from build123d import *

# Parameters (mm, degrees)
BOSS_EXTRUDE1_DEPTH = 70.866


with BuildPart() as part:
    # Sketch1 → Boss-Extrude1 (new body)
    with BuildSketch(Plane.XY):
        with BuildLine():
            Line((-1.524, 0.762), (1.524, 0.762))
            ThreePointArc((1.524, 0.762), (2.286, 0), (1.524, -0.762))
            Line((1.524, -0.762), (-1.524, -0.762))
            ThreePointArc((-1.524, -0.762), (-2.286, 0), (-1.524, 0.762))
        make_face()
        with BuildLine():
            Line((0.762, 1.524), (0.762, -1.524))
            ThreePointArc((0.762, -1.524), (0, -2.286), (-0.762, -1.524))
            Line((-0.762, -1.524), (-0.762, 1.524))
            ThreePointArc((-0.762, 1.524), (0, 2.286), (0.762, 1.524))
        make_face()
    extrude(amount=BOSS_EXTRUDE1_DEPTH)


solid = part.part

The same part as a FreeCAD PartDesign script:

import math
import FreeCAD as App
import Part
import Sketcher

V = App.Vector
Q = App.Units.Quantity

doc = App.newDocument("Part")
params = doc.addObject("Spreadsheet::Sheet", "Params")
for row, (alias, value) in enumerate([
    ("sketch1_radius", "0.03 in"),
    ("sketch1_width", "0.03 in"),
    ("pad1_length", "2.79 in"),
], start=1):
    params.set(f"A{row}", alias)
    params.set(f"B{row}", "=" + value)
    params.setAlias(f"B{row}", alias)

body = doc.addObject("PartDesign::Body", "Body")

sketch1 = doc.addObject("Sketcher::SketchObject", "Sketch")
body.addObject(sketch1)
sketch1.AttachmentSupport = (doc.XY_Plane, [""])
sketch1.MapMode = "FlatFace"
sketch1.addGeometry(Part.ArcOfCircle(Part.Circle(V(-1.5, 0, 0), V(0, 0, 1), 0.8), math.radians(90), math.radians(270)), False)
sketch1.addGeometry(Part.LineSegment(V(-1.5, -0.8, 0), V(-0.8, -0.8, 0)), False)
sketch1.addGeometry(Part.LineSegment(V(-0.8, -0.8, 0), V(-0.8, -1.5, 0)), False)
sketch1.addGeometry(Part.ArcOfCircle(Part.Circle(V(0, -1.5, 0), V(0, 0, 1), 0.8), math.radians(180), math.radians(360)), False)
sketch1.addGeometry(Part.LineSegment(V(0.8, -1.5, 0), V(0.8, -0.8, 0)), False)
sketch1.addGeometry(Part.LineSegment(V(0.8, -0.8, 0), V(1.5, -0.8, 0)), False)
sketch1.addGeometry(Part.ArcOfCircle(Part.Circle(V(1.5, 0, 0), V(0, 0, 1), 0.8), math.radians(-90), math.radians(90)), False)
sketch1.addGeometry(Part.LineSegment(V(1.5, 0.8, 0), V(0.8, 0.8, 0)), False)
sketch1.addGeometry(Part.LineSegment(V(0.8, 0.8, 0), V(0.8, 1.5, 0)), False)
sketch1.addGeometry(Part.ArcOfCircle(Part.Circle(V(0, 1.5, 0), V(0, 0, 1), 0.8), math.radians(0), math.radians(180)), False)
sketch1.addGeometry(Part.LineSegment(V(-0.8, 1.5, 0), V(-0.8, 0.8, 0)), False)
sketch1.addGeometry(Part.LineSegment(V(-0.8, 0.8, 0), V(-1.5, 0.8, 0)), False)
sketch1.addConstraint(Sketcher.Constraint("Tangent", 0, 2, 1, 1))
sketch1.addConstraint(Sketcher.Constraint("Coincident", 1, 2, 2, 1))
sketch1.addConstraint(Sketcher.Constraint("Tangent", 2, 2, 3, 1))
sketch1.addConstraint(Sketcher.Constraint("Tangent", 3, 2, 4, 1))
sketch1.addConstraint(Sketcher.Constraint("Coincident", 4, 2, 5, 1))
sketch1.addConstraint(Sketcher.Constraint("Tangent", 5, 2, 6, 1))
sketch1.addConstraint(Sketcher.Constraint("Tangent", 6, 2, 7, 1))
sketch1.addConstraint(Sketcher.Constraint("Coincident", 7, 2, 8, 1))
sketch1.addConstraint(Sketcher.Constraint("Tangent", 8, 2, 9, 1))
sketch1.addConstraint(Sketcher.Constraint("Tangent", 9, 2, 10, 1))
sketch1.addConstraint(Sketcher.Constraint("Coincident", 10, 2, 11, 1))
sketch1.addConstraint(Sketcher.Constraint("Tangent", 11, 2, 0, 1))
sketch1.addConstraint(Sketcher.Constraint("Horizontal", 1))
sketch1.addConstraint(Sketcher.Constraint("Vertical", 2))
sketch1.addConstraint(Sketcher.Constraint("Vertical", 4))
sketch1.addConstraint(Sketcher.Constraint("Horizontal", 5))
sketch1.addConstraint(Sketcher.Constraint("Horizontal", 7))
sketch1.addConstraint(Sketcher.Constraint("Vertical", 8))
sketch1.addConstraint(Sketcher.Constraint("Vertical", 10))
sketch1.addConstraint(Sketcher.Constraint("Horizontal", 11))
sketch1.addConstraint(Sketcher.Constraint("Equal", 0, 3))
sketch1.addConstraint(Sketcher.Constraint("Equal", 3, 6))
sketch1.addConstraint(Sketcher.Constraint("Equal", 6, 9))
sketch1.addConstraint(Sketcher.Constraint("Symmetric", 0, 3, 6, 3, -1, 1))
sketch1.addConstraint(Sketcher.Constraint("Symmetric", 3, 3, 9, 3, -1, 1))
sketch1.addConstraint(Sketcher.Constraint("Symmetric", 1, 2, 4, 2, -2))
sketch1.addConstraint(Sketcher.Constraint("Equal", 11, 2))
sketch1.addConstraint(Sketcher.Constraint("Radius", 0, Q("0.03 in")))
sketch1.addConstraint(Sketcher.Constraint("DistanceX", 1, 1, 1, 2, Q("0.03 in")))
sketch1.setExpression("Constraints[27]", "Params.sketch1_radius")
sketch1.setExpression("Constraints[28]", "Params.sketch1_width")
pad1 = doc.addObject("PartDesign::Pad", "Pad")
body.addObject(pad1)
pad1.Profile = sketch1
pad1.setExpression("Length", "Params.pad1_length")

doc.recompute()
